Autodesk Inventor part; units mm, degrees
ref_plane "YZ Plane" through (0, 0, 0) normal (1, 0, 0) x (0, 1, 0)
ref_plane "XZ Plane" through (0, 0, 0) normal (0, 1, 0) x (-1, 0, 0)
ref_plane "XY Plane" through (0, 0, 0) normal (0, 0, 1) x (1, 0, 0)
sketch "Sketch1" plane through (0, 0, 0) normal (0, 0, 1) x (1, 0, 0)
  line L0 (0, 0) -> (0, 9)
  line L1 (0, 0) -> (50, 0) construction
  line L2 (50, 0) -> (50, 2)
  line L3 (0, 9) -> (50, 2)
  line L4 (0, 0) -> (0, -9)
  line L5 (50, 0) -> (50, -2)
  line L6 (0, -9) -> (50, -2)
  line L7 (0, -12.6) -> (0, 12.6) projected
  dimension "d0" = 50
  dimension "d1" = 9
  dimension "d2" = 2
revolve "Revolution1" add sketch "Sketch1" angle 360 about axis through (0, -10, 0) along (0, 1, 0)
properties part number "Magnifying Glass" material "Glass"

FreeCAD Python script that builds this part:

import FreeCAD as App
import Part
import Sketcher

V = App.Vector

doc = App.newDocument("Part")
body = doc.addObject("PartDesign::Body", "Body")

sketch1 = doc.addObject("Sketcher::SketchObject", "Sketch")
body.addObject(sketch1)
sketch1.AttachmentSupport = (doc.XY_Plane, [""])
sketch1.MapMode = "FlatFace"
sketch1.addGeometry(Part.LineSegment(V(0, 9, 0), V(0, -9, 0)), False)
sketch1.addGeometry(Part.LineSegment(V(0, -9, 0), V(50, -2, 0)), False)
sketch1.addGeometry(Part.LineSegment(V(50, -2, 0), V(50, 2, 0)), False)
sketch1.addGeometry(Part.LineSegment(V(50, 2, 0), V(0, 9, 0)), False)
sketch1.addConstraint(Sketcher.Constraint("Coincident", 0, 2, 1, 1))
sketch1.addConstraint(Sketcher.Constraint("Coincident", 1, 2, 2, 1))
sketch1.addConstraint(Sketcher.Constraint("Coincident", 2, 2, 3, 1))
sketch1.addConstraint(Sketcher.Constraint("Coincident", 3, 2, 0, 1))
sketch1.addConstraint(Sketcher.Constraint("Vertical", 0))
sketch1.addConstraint(Sketcher.Constraint("Vertical", 2))
sketch1.addConstraint(Sketcher.Constraint("Symmetric", 0, 2, 3, 2, -1, 1))
sketch1.addConstraint(Sketcher.Constraint("Equal", 1, 3))
sketch1.addConstraint(Sketcher.Constraint("DistanceY", 0, 2, -1, 1, 9.0))
sketch1.addConstraint(Sketcher.Constraint("DistanceX", -1, 1, 1, 2, 50.0))
sketch1.addConstraint(Sketcher.Constraint("DistanceY", 1, 2, -1, 1, 2.0))
revolution = doc.addObject("PartDesign::Revolution", "Revolution")
body.addObject(revolution)
revolution.Profile = sketch1
revolution.ReferenceAxis = (sketch1, ["V_Axis"])
revolution.Angle = 360

doc.recompute()
